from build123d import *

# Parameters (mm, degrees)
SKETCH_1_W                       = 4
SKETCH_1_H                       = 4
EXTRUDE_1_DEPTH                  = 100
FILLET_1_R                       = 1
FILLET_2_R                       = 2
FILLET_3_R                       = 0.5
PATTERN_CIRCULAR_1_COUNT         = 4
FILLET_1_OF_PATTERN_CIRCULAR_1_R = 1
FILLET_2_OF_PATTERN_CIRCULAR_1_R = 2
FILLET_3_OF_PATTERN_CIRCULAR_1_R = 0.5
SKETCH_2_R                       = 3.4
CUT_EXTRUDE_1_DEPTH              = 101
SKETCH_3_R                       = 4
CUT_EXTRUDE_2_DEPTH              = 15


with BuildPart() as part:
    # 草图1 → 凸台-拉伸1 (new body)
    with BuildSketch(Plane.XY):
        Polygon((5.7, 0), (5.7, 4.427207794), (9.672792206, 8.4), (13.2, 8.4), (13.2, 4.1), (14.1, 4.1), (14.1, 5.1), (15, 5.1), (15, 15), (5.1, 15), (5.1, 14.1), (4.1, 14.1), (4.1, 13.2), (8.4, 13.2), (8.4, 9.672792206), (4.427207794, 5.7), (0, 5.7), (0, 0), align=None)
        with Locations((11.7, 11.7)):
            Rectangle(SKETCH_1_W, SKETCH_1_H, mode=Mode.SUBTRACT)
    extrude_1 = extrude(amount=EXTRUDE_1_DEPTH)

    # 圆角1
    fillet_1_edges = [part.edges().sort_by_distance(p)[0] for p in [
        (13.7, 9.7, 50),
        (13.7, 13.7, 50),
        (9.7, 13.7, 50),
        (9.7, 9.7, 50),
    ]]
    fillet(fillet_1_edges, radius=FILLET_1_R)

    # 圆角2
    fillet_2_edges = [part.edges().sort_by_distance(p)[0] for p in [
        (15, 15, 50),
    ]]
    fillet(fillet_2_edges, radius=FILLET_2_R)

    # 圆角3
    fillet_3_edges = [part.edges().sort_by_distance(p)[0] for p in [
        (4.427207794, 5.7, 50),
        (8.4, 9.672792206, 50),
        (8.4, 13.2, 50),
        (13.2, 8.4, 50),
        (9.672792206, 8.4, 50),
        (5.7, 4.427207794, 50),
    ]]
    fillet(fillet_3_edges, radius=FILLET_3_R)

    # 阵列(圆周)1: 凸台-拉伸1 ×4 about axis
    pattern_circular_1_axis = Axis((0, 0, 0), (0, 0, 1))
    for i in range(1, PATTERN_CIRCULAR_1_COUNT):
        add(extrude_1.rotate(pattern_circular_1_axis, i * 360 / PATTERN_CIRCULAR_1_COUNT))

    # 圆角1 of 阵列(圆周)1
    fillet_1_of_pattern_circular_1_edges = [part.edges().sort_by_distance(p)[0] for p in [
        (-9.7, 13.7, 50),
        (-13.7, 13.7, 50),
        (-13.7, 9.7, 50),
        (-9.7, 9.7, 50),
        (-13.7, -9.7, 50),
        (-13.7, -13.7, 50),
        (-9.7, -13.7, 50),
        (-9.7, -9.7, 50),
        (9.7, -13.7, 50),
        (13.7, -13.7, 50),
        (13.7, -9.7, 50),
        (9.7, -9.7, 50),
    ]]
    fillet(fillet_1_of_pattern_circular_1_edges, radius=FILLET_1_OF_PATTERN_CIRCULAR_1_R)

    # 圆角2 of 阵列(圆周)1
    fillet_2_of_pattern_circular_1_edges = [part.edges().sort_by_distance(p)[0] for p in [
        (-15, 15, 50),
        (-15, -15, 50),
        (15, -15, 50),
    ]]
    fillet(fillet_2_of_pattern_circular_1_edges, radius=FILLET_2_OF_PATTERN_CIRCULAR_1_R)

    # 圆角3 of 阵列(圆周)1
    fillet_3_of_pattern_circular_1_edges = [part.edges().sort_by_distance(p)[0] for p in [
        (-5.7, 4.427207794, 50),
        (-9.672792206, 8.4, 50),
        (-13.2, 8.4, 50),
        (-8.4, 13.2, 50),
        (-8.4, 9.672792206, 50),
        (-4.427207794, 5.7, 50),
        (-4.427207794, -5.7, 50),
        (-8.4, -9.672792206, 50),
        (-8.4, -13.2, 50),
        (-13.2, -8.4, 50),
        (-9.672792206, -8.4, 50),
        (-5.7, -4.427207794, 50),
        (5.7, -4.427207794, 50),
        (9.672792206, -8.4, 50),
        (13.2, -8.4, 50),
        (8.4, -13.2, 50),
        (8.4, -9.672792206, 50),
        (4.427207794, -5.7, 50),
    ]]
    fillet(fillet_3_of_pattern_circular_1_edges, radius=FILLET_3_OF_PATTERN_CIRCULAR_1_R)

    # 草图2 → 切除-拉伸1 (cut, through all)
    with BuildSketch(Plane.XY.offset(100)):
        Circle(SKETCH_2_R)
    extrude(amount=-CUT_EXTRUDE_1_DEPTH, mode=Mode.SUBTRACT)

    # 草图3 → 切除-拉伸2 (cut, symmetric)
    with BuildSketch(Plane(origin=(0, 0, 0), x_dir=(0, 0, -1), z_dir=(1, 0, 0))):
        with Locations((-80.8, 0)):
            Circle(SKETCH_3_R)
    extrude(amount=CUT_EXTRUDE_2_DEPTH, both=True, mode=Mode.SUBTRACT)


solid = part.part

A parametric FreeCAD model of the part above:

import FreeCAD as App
import Part
import Sketcher

V = App.Vector
Q = App.Units.Quantity


def edges_at(feature, points):
    """Names of the edges that pass closest to the given points."""
    edges = feature.Shape.Edges
    near = lambda p: min(range(len(edges)), key=lambda i: edges[i].distToShape(Part.Vertex(*p))[0])
    return sorted({f"Edge{near(p) + 1}" for p in points})


def add_polygon(sketch, points):
    """Adds a closed chain of lines whose ends are joined by coincident constraints."""
    first, n = sketch.GeometryCount, len(points)
    for a, b in zip(points, points[1:] + points[:1]):
        sketch.addGeometry(Part.LineSegment(App.Vector(*a, 0), App.Vector(*b, 0)), False)
    for i in range(n):
        sketch.addConstraint(Sketcher.Constraint("Coincident", first + i, 2, first + (i + 1) % n, 1))

doc = App.newDocument("Part")
body = doc.addObject("PartDesign::Body", "Body")

# Sketch on XY plane
sketch1 = doc.addObject("Sketcher::SketchObject", "Sketch")
body.addObject(sketch1)
sketch1.AttachmentSupport = (doc.XY_Plane, [""])
sketch1.MapMode = "FlatFace"
add_polygon(sketch1, [(5.7, 0), (5.7, 4.4), (9.7, 8.4), (13.2, 8.4), (13.2, 4.1), (14.1, 4.1), (14.1, 5.1), (15, 5.1), (15, 15), (5.1, 15), (5.1, 14.1), (4.1, 14.1), (4.1, 13.2), (8.4, 13.2), (8.4, 9.7), (4.4, 5.7), (0, 5.7), (0, 0)])  # lines 0-17
add_polygon(sketch1, [(13.7, 9.7), (9.7, 9.7), (9.7, 13.7), (13.7, 13.7)])  # lines 18-21
sketch1.addConstraint(Sketcher.Constraint("Vertical", 0))
sketch1.addConstraint(Sketcher.Constraint("Horizontal", 2))
sketch1.addConstraint(Sketcher.Constraint("Vertical", 3))
sketch1.addConstraint(Sketcher.Constraint("Horizontal", 4))
sketch1.addConstraint(Sketcher.Constraint("Vertical", 5))
sketch1.addConstraint(Sketcher.Constraint("Horizontal", 6))
sketch1.addConstraint(Sketcher.Constraint("Vertical", 7))
sketch1.addConstraint(Sketcher.Constraint("Horizontal", 8))
sketch1.addConstraint(Sketcher.Constraint("Vertical", 9))
sketch1.addConstraint(Sketcher.Constraint("Horizontal", 10))
sketch1.addConstraint(Sketcher.Constraint("Vertical", 11))
sketch1.addConstraint(Sketcher.Constraint("Horizontal", 12))
sketch1.addConstraint(Sketcher.Constraint("Vertical", 13))
sketch1.addConstraint(Sketcher.Constraint("Horizontal", 15))
sketch1.addConstraint(Sketcher.Constraint("Vertical", 16))
sketch1.addConstraint(Sketcher.Constraint("Horizontal", 17))
sketch1.addConstraint(Sketcher.Constraint("Horizontal", 18))
sketch1.addConstraint(Sketcher.Constraint("Vertical", 19))
sketch1.addConstraint(Sketcher.Constraint("Horizontal", 20))
sketch1.addConstraint(Sketcher.Constraint("Vertical", 21))
sketch1.addConstraint(Sketcher.Constraint("Coincident", 16, 2, -1, 1))
sketch1.addConstraint(Sketcher.Constraint("Parallel", 1, 14))
sketch1.addConstraint(Sketcher.Constraint("Equal", 4, 6))
sketch1.addConstraint(Sketcher.Constraint("Equal", 15, 0))
sketch1.addConstraint(Sketcher.Constraint("Equal", 12, 3))
sketch1.addConstraint(Sketcher.Constraint("Equal", 10, 5))
sketch1.addConstraint(Sketcher.Constraint("Equal", 8, 7))
sketch1.addConstraint(Sketcher.Constraint("Equal", 6, 9))
sketch1.addConstraint(Sketcher.Constraint("Equal", 9, 11))
sketch1.addConstraint(Sketcher.Constraint("Equal", 2, 13))
sketch1.addConstraint(Sketcher.Constraint("Equal", 17, 16))
sketch1.addConstraint(Sketcher.Constraint("Equal", 20, 19))
sketch1.addConstraint(Sketcher.Constraint("DistanceX", 10, 2, 10, 1, 1.0))
sketch1.addConstraint(Sketcher.Constraint("DistanceX", 18, 2, 18, 1, 4.0))
sketch1.addConstraint(Sketcher.Constraint("Angle", 1, Q("45 deg")))
sketch1.addConstraint(Sketcher.Constraint("DistanceX", 4, 1, 4, 2, 0.9))
sketch1.addConstraint(Sketcher.Constraint("DistanceX", 8, 2, 8, 1, 9.9))
sketch1.addConstraint(Sketcher.Constraint("DistanceX", 12, 1, 12, 2, 4.3))
sketch1.addConstraint(Sketcher.Constraint("DistanceX", 17, 1, 17, 2, 5.7))
sketch1.addConstraint(Sketcher.Constraint("DistanceX", -1, 1, 6, 2, 15.0))
sketch1.addConstraint(Sketcher.Constraint("DistanceX", -1, 1, 18, 2, 9.7))
sketch1.addConstraint(Sketcher.Constraint("DistanceY", -1, 1, 18, 2, 9.7))
sketch1.addConstraint(Sketcher.Constraint("DistanceX", 2, 1, 2, 2, 3.527208))
pad1 = doc.addObject("PartDesign::Pad", "Pad")
body.addObject(pad1)
pad1.Profile = sketch1
pad1.Length = 100
doc.recompute()

fillet = doc.addObject("PartDesign::Fillet", "Fillet")
body.addObject(fillet)
fillet.Base = (pad1, edges_at(pad1, [
    (13.7, 9.7, 50),
    (13.7, 13.7, 50),
    (9.7, 13.7, 50),
    (9.7, 9.7, 50),
]))
fillet.Radius = 1
doc.recompute()

fillet2 = doc.addObject("PartDesign::Fillet", "Fillet001")
body.addObject(fillet2)
fillet2.Base = (fillet, edges_at(fillet, [(15, 15, 50)]))
fillet2.Radius = 2
doc.recompute()

fillet3 = doc.addObject("PartDesign::Fillet", "Fillet002")
body.addObject(fillet3)
fillet3.Base = (fillet2, edges_at(fillet2, [
    (4.427, 5.7, 50),
    (8.4, 9.673, 50),
    (8.4, 13.2, 50),
    (13.2, 8.4, 50),
    (9.673, 8.4, 50),
    (5.7, 4.427, 50),
]))
fillet3.Radius = 0.5
doc.recompute()

polarpattern = doc.addObject("PartDesign::PolarPattern", "PolarPattern")
body.addObject(polarpattern)
polarpattern.Originals = [pad1]
polarpattern.Axis = (doc.Z_Axis, [""])
polarpattern.Angle = 360
polarpattern.Occurrences = 4
body.Tip = polarpattern
doc.recompute()

fillet4 = doc.addObject("PartDesign::Fillet", "Fillet003")
body.addObject(fillet4)
fillet4.Base = (polarpattern, edges_at(polarpattern, [
    (-9.7, 13.7, 50),
    (-13.7, 13.7, 50),
    (-13.7, 9.7, 50),
    (-9.7, 9.7, 50),
    (-13.7, -9.7, 50),
    (-13.7, -13.7, 50),
    (-9.7, -13.7, 50),
    (-9.7, -9.7, 50),
    (9.7, -13.7, 50),
    (13.7, -13.7, 50),
    (13.7, -9.7, 50),
    (9.7, -9.7, 50),
]))
fillet4.Radius = 1
doc.recompute()

fillet5 = doc.addObject("PartDesign::Fillet", "Fillet004")
body.addObject(fillet5)
fillet5.Base = (fillet4, edges_at(fillet4, [(-15, 15, 50), (-15, -15, 50), (15, -15, 50)]))
fillet5.Radius = 2
doc.recompute()

fillet6 = doc.addObject("PartDesign::Fillet", "Fillet005")
body.addObject(fillet6)
fillet6.Base = (fillet5, edges_at(fillet5, [
    (-5.7, 4.427, 50),
    (-9.673, 8.4, 50),
    (-13.2, 8.4, 50),
    (-8.4, 13.2, 50),
    (-8.4, 9.673, 50),
    (-4.427, 5.7, 50),
    (-4.427, -5.7, 50),
    (-8.4, -9.673, 50),
    (-8.4, -13.2, 50),
    (-13.2, -8.4, 50),
    (-9.673, -8.4, 50),
    (-5.7, -4.427, 50),
    (5.7, -4.427, 50),
    (9.673, -8.4, 50),
    (13.2, -8.4, 50),
    (8.4, -13.2, 50),
    (8.4, -9.673, 50),
    (4.427, -5.7, 50),
]))
fillet6.Radius = 0.5

# Sketch on XY plane
sketch2 = doc.addObject("Sketcher::SketchObject", "Sketch001")
body.addObject(sketch2)
sketch2.AttachmentSupport = (doc.XY_Plane, [""])
sketch2.MapMode = "FlatFace"
sketch2.AttachmentOffset = App.Placement(V(0, 0, 100), App.Rotation())
sketch2.addGeometry(Part.Circle(V(0, 0, 0), V(0, 0, 1), 3.4), False)
sketch2.addConstraint(Sketcher.Constraint("Coincident", 0, 3, -1, 1))
sketch2.addConstraint(Sketcher.Constraint("Diameter", 0, 6.8))
pocket1 = doc.addObject("PartDesign::Pocket", "Pocket")
body.addObject(pocket1)
pocket1.Profile = sketch2
pocket1.Type = "ThroughAll"

# Sketch on YZ plane
sketch3 = doc.addObject("Sketcher::SketchObject", "Sketch002")
body.addObject(sketch3)
sketch3.AttachmentSupport = (doc.YZ_Plane, [""])
sketch3.MapMode = "FlatFace"
sketch3.addGeometry(Part.Circle(V(0, 80.8, 0), V(0, 0, 1), 4), False)
sketch3.addConstraint(Sketcher.Constraint("PointOnObject", 0, 3, -2))
sketch3.addConstraint(Sketcher.Constraint("Diameter", 0, 8.0))
sketch3.addConstraint(Sketcher.Constraint("DistanceY", -1, 1, 0, 3, 80.8))
pocket2 = doc.addObject("PartDesign::Pocket", "Pocket001")
body.addObject(pocket2)
pocket2.Profile = sketch3
pocket2.Length = 30
pocket2.Midplane = True

doc.recompute()
